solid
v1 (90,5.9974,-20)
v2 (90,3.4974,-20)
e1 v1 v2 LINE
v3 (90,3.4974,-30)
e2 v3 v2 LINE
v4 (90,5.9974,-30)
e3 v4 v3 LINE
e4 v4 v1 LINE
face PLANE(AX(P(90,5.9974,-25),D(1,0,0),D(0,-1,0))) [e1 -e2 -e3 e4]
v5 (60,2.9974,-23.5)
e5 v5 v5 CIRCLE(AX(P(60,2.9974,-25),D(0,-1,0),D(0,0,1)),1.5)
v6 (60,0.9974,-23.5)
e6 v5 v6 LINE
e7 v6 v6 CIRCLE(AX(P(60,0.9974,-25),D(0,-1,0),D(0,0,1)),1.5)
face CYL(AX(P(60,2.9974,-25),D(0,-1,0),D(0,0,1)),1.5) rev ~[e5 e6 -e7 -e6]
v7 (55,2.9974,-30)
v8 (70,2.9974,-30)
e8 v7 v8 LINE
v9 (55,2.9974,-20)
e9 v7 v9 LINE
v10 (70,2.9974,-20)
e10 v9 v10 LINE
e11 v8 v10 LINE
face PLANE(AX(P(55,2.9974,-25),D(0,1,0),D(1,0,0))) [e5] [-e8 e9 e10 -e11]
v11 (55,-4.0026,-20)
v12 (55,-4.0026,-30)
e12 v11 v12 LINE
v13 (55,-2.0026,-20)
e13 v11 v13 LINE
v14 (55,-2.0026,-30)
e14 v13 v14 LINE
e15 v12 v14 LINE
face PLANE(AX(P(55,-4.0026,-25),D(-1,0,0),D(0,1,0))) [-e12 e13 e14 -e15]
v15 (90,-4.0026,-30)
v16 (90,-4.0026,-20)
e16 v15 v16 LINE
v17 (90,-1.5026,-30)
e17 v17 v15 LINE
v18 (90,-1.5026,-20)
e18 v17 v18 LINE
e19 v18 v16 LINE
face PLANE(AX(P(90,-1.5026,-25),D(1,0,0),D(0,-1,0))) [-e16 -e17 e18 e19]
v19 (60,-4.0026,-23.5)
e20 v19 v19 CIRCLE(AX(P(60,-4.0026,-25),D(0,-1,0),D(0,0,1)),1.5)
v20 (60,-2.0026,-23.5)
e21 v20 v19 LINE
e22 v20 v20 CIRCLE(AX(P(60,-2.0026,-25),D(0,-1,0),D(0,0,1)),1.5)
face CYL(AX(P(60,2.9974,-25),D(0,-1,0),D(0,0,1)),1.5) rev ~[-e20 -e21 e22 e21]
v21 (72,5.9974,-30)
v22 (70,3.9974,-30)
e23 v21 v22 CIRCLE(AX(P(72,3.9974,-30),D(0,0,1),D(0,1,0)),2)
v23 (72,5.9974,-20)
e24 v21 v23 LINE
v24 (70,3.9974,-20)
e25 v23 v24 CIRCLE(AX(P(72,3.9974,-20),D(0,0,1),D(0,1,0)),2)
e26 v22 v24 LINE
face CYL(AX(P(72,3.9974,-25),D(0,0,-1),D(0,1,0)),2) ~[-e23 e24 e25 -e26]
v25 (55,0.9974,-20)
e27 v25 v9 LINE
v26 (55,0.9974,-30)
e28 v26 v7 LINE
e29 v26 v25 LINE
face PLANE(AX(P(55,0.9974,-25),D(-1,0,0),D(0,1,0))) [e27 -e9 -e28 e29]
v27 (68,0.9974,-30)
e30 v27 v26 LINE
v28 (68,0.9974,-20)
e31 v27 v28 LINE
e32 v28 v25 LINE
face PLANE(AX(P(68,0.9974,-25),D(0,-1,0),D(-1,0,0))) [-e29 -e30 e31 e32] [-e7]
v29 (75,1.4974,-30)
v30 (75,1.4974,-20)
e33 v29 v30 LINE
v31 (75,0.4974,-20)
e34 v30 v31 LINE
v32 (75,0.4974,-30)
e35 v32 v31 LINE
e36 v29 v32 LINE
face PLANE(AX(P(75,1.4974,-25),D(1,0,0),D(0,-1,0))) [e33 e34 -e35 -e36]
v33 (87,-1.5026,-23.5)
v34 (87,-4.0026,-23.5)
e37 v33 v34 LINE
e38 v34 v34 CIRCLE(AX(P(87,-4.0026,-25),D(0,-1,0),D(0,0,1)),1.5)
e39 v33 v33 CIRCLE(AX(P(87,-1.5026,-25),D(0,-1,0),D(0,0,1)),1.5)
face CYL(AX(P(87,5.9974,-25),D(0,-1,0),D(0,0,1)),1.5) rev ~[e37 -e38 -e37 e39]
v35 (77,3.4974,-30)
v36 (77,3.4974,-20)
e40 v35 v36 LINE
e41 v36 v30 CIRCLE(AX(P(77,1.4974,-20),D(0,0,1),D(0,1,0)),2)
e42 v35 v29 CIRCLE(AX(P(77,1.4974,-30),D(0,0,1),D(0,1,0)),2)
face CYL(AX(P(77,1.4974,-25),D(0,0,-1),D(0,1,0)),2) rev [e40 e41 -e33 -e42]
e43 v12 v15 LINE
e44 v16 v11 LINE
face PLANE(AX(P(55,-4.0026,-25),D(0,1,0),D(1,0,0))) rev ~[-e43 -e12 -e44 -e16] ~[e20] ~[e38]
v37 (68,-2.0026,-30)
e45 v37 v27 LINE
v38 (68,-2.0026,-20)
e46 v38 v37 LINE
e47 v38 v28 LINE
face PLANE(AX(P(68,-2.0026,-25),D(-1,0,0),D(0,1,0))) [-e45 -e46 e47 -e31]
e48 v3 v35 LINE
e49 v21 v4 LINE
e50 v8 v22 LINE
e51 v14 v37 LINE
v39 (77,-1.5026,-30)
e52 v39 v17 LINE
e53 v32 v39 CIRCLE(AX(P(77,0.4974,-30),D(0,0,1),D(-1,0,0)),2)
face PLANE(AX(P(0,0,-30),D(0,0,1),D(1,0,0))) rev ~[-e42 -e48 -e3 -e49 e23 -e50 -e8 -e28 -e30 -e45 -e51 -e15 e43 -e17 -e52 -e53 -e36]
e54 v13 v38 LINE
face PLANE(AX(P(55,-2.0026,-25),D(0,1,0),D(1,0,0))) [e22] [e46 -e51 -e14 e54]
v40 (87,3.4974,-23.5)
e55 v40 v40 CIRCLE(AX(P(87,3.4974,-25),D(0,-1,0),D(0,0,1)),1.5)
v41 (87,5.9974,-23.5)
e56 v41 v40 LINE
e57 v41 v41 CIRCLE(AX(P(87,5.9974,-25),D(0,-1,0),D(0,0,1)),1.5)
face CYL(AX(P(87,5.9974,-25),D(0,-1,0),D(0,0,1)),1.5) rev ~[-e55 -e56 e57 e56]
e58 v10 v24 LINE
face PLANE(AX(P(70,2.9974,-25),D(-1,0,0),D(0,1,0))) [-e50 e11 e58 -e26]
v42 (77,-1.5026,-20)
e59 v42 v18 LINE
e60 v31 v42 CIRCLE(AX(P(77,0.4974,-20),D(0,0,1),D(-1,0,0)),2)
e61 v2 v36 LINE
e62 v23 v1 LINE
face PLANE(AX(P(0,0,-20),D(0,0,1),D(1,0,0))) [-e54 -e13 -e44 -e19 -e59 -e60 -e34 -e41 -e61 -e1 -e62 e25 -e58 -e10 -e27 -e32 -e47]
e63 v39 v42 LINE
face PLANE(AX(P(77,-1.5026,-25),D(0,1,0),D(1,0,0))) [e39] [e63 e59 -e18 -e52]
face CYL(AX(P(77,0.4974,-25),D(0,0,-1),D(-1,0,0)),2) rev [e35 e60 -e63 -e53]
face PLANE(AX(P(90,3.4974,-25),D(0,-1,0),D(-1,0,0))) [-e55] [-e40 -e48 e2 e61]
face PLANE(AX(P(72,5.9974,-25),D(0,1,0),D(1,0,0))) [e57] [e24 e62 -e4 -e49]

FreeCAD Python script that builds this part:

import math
import FreeCAD as App
import Part
import Sketcher

V = App.Vector

doc = App.newDocument("Part")
body = doc.addObject("PartDesign::Body", "Body")

# Sketch on XY plane
sketch1 = body.newObject("Sketcher::SketchObject", "Sketch")
sketch1.AttachmentSupport = (doc.getObject("XY_Plane"), [""])
sketch1.MapMode = "FlatFace"
sketch1.AttachmentOffset = App.Placement(V(0, 0, -25), App.Rotation())
sketch1.addGeometry([
    Part.LineSegment(V(55, -4, 0), V(90, -4, 0)),  # 0
    Part.LineSegment(V(90, -4, 0), V(90, -1.5, 0)),  # 1
    Part.LineSegment(V(90, -1.5, 0), V(77, -1.5, 0)),  # 2
    Part.ArcOfCircle(Part.Circle(V(77, 0.5, 0), V(0, 0, 1), 2), math.radians(180), math.radians(270)),  # 3
    Part.LineSegment(V(75, 0.5, 0), V(75, 1.5, 0)),  # 4
    Part.ArcOfCircle(Part.Circle(V(77, 1.5, 0), V(0, 0, 1), 2), math.radians(90), math.radians(180)),  # 5
    Part.LineSegment(V(77, 3.5, 0), V(90, 3.5, 0)),  # 6
    Part.LineSegment(V(90, 3.5, 0), V(90, 6, 0)),  # 7
    Part.LineSegment(V(90, 6, 0), V(72, 6, 0)),  # 8
    Part.ArcOfCircle(Part.Circle(V(72, 4, 0), V(0, 0, 1), 2), math.radians(90), math.radians(180)),  # 9
    Part.LineSegment(V(70, 4, 0), V(70, 3, 0)),  # 10
    Part.LineSegment(V(70, 3, 0), V(55, 3, 0)),  # 11
    Part.LineSegment(V(55, 3, 0), V(55, 1, 0)),  # 12
    Part.LineSegment(V(55, 1, 0), V(68, 1, 0)),  # 13
    Part.LineSegment(V(68, 1, 0), V(68, -2, 0)),  # 14
    Part.LineSegment(V(68, -2, 0), V(55, -2, 0)),  # 15
    Part.LineSegment(V(55, -2, 0), V(55, -4, 0)),  # 16
], False)
sketch1.addConstraint([
    Sketcher.Constraint("Coincident", 0, 2, 1, 1),
    Sketcher.Constraint("Coincident", 1, 2, 2, 1),
    Sketcher.Constraint("Tangent", 2, 2, 3, 2),
    Sketcher.Constraint("Tangent", 3, 1, 4, 1),
    Sketcher.Constraint("Tangent", 4, 2, 5, 2),
    Sketcher.Constraint("Tangent", 5, 1, 6, 1),
    Sketcher.Constraint("Coincident", 6, 2, 7, 1),
    Sketcher.Constraint("Coincident", 7, 2, 8, 1),
    Sketcher.Constraint("Tangent", 8, 2, 9, 1),
    Sketcher.Constraint("Tangent", 9, 2, 10, 1),
    Sketcher.Constraint("Coincident", 10, 2, 11, 1),
    Sketcher.Constraint("Coincident", 11, 2, 12, 1),
    Sketcher.Constraint("Coincident", 12, 2, 13, 1),
    Sketcher.Constraint("Coincident", 13, 2, 14, 1),
    Sketcher.Constraint("Coincident", 14, 2, 15, 1),
    Sketcher.Constraint("Coincident", 15, 2, 16, 1),
    Sketcher.Constraint("Coincident", 16, 2, 0, 1),
    Sketcher.Constraint("Horizontal", 0),
    Sketcher.Constraint("Vertical", 1),
    Sketcher.Constraint("Horizontal", 2),
    Sketcher.Constraint("Vertical", 4),
    Sketcher.Constraint("Horizontal", 6),
    Sketcher.Constraint("Vertical", 7),
    Sketcher.Constraint("Horizontal", 8),
    Sketcher.Constraint("Vertical", 10),
    Sketcher.Constraint("Horizontal", 11),
    Sketcher.Constraint("Vertical", 12),
    Sketcher.Constraint("Horizontal", 13),
    Sketcher.Constraint("Vertical", 14),
    Sketcher.Constraint("Horizontal", 15),
    Sketcher.Constraint("Vertical", 16),
    Sketcher.Constraint("Equal", 3, 5),
    Sketcher.Constraint("Equal", 5, 9),
    Sketcher.Constraint("Vertical", 1, 2, 6, 2),
    Sketcher.Constraint("Vertical", 12, 2, 15, 2),
    Sketcher.Constraint("Equal", 6, 13),
    Sketcher.Constraint("Equal", 1, 7),
    Sketcher.Constraint("Equal", 4, 10),
    Sketcher.Constraint("Equal", 12, 16),
    Sketcher.Constraint("Radius", 3, 2.0),
    Sketcher.Constraint("DistanceX", 11, 2, 11, 1, 15.0),
    Sketcher.Constraint("DistanceY", 12, 2, 12, 1, 2.0),
    Sketcher.Constraint("DistanceY", 14, 2, 14, 1, 3.0),
    Sketcher.Constraint("DistanceX", 9, 3, 5, 3, 5.0),
    Sketcher.Constraint("DistanceY", 1, 2, 5, 3, 3.0),
    Sketcher.Constraint("DistanceX", 3, 1, 1, 2, 15.0),
    Sketcher.Constraint("DistanceX", -1, 1, 3, 3, 77.0),
    Sketcher.Constraint("DistanceY", -1, 1, 3, 3, 0.4974),
])
pad1 = body.newObject("PartDesign::Pad", "Pad")
pad1.Profile = sketch1
pad1.Length = 10
pad1.Midplane = True

# Sketch on XZ plane
sketch2 = body.newObject("Sketcher::SketchObject", "Sketch001")
sketch2.AttachmentSupport = (doc.getObject("XZ_Plane"), [""])
sketch2.MapMode = "FlatFace"
sketch2.AttachmentOffset = App.Placement(V(0, 0, -5.9974), App.Rotation())
sketch2.addGeometry(Part.Circle(V(87, -25, 0), V(0, 0, 1), 1.5), False)
sketch2.addConstraint([
    Sketcher.Constraint("Diameter", 0, 3.0),
    Sketcher.Constraint("DistanceX", -1, 1, 0, 3, 87.0),
    Sketcher.Constraint("DistanceY", 0, 3, -1, 1, 25.0),
])
doc.recompute()
hole = body.newObject("PartDesign::Hole", "Hole")
hole.Profile = sketch2
hole.ThreadType = "None"
hole.Diameter = 3
hole.DepthType = "ThroughAll"
hole.Reversed = True

# Sketch on XZ plane
sketch3 = body.newObject("Sketcher::SketchObject", "Sketch002")
sketch3.AttachmentSupport = (doc.getObject("XZ_Plane"), [""])
sketch3.MapMode = "FlatFace"
sketch3.AttachmentOffset = App.Placement(V(0, 0, -2.9974), App.Rotation())
sketch3.addGeometry(Part.Circle(V(60, -25, 0), V(0, 0, 1), 1.5), False)
sketch3.addConstraint([
    Sketcher.Constraint("Diameter", 0, 3.0),
    Sketcher.Constraint("DistanceX", -1, 1, 0, 3, 60.0),
    Sketcher.Constraint("DistanceY", 0, 3, -1, 1, 25.0),
])
doc.recompute()
hole2 = body.newObject("PartDesign::Hole", "Hole001")
hole2.Profile = sketch3
hole2.ThreadType = "None"
hole2.Diameter = 3
hole2.DepthType = "ThroughAll"
hole2.Reversed = True

doc.recompute()
